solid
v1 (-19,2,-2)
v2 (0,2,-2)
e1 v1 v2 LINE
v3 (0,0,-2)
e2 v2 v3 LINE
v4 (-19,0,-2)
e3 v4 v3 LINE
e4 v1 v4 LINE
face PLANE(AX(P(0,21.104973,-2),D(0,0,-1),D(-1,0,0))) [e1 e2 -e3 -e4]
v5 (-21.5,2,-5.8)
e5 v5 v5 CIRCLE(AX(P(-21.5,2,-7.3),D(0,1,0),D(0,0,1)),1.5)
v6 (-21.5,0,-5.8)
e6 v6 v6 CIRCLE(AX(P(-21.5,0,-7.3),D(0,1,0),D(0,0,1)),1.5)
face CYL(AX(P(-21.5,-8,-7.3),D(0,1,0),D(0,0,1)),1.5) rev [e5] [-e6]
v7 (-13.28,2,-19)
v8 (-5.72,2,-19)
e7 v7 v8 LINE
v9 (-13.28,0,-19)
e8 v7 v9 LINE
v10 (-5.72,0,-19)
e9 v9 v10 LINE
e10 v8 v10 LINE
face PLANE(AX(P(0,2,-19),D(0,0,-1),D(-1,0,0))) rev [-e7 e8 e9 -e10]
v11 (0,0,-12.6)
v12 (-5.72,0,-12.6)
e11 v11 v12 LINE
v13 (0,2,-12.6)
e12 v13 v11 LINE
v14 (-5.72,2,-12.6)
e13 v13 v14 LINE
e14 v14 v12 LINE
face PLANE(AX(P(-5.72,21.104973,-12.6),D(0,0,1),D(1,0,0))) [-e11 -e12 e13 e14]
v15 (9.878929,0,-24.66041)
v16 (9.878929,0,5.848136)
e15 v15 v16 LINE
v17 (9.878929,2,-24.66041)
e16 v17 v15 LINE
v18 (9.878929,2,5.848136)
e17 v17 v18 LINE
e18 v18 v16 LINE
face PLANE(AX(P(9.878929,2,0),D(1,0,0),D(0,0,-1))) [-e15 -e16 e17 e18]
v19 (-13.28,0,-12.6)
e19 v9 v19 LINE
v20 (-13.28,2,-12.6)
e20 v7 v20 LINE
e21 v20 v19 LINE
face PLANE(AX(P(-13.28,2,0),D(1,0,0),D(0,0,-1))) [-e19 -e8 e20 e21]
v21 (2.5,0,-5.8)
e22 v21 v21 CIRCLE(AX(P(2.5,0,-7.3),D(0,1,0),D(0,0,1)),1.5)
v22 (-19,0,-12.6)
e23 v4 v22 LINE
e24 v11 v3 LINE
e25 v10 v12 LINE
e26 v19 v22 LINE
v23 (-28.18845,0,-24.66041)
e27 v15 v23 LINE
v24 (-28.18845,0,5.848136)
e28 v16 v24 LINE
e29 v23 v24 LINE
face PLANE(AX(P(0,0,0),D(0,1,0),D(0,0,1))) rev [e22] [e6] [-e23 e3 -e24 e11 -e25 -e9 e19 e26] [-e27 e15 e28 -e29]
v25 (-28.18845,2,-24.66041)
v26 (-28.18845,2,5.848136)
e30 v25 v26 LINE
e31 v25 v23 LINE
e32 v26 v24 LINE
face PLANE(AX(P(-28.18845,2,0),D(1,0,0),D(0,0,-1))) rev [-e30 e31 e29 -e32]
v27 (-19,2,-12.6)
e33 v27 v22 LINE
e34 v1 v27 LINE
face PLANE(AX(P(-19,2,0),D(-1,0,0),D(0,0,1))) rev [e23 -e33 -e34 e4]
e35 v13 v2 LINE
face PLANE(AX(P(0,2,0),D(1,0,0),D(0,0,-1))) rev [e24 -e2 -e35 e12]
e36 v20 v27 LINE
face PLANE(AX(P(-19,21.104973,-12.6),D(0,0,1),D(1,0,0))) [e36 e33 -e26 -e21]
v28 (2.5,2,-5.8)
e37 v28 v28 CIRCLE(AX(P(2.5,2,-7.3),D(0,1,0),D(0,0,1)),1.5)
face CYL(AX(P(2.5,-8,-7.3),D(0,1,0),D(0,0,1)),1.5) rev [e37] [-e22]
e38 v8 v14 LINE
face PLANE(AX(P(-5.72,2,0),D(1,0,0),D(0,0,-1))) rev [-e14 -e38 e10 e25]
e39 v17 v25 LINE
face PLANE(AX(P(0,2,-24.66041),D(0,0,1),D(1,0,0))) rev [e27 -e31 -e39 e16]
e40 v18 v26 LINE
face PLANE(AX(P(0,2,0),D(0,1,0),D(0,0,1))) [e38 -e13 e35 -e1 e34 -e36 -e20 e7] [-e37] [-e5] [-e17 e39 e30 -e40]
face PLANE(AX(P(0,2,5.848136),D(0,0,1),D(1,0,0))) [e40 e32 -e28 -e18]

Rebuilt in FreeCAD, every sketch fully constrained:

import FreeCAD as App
import Part
import Sketcher

V = App.Vector


def add_polygon(sketch, points):
    """Adds a closed chain of lines whose ends are joined by coincident constraints."""
    first, n = sketch.GeometryCount, len(points)
    for a, b in zip(points, points[1:] + points[:1]):
        sketch.addGeometry(Part.LineSegment(App.Vector(*a, 0), App.Vector(*b, 0)), False)
    for i in range(n):
        sketch.addConstraint(Sketcher.Constraint("Coincident", first + i, 2, first + (i + 1) % n, 1))

doc = App.newDocument("Part")
body = doc.addObject("PartDesign::Body", "Body")

# Sketch on XZ plane
sketch1 = body.newObject("Sketcher::SketchObject", "Sketch")
sketch1.AttachmentSupport = (doc.getObject("XZ_Plane"), [""])
sketch1.MapMode = "FlatFace"
add_polygon(sketch1, [(-28.2, -24.7), (-28.2, 5.8), (9.9, 5.8), (9.9, -24.7)])  # lines 0-3
sketch1.addGeometry(Part.Circle(V(-21.5, -7.9, 0), V(0, 0, 1), 1.5), False)  # 4
sketch1.addGeometry(Part.Circle(V(2.5, -7.9, 0), V(0, 0, 1), 1.5), False)  # 5
add_polygon(sketch1, [(0, 0), (-19, 0), (-19, -14.6), (-13.3, -14.6), (-13.3, -19), (-5.7, -19), (-5.7, -14.6), (0, -14.6)])  # lines 6-13
sketch1.addConstraint([
    Sketcher.Constraint("Vertical", 0),
    Sketcher.Constraint("Horizontal", 1),
    Sketcher.Constraint("Vertical", 2),
    Sketcher.Constraint("Horizontal", 3),
    Sketcher.Constraint("Horizontal", 6),
    Sketcher.Constraint("Vertical", 7),
    Sketcher.Constraint("Horizontal", 8),
    Sketcher.Constraint("Vertical", 9),
    Sketcher.Constraint("Horizontal", 10),
    Sketcher.Constraint("Vertical", 11),
    Sketcher.Constraint("Horizontal", 12),
    Sketcher.Constraint("Vertical", 13),
    Sketcher.Constraint("Coincident", 13, 2, -1, 1),
    Sketcher.Constraint("Equal", 4, 5),
    Sketcher.Constraint("Horizontal", 4, 3, 5, 3),
    Sketcher.Constraint("Horizontal", 8, 2, 11, 2),
    Sketcher.Constraint("Equal", 8, 12),
    Sketcher.Constraint("Diameter", 4, 3.0),
    Sketcher.Constraint("DistanceX", 6, 2, 6, 1, 19.0),
    Sketcher.Constraint("DistanceY", 7, 2, 7, 1, 14.6),
    Sketcher.Constraint("DistanceY", 9, 2, 9, 1, 4.4),
    Sketcher.Constraint("DistanceX", 4, 3, 5, 3, 24.0),
    Sketcher.Constraint("DistanceX", 8, 1, 8, 2, 5.72),
    Sketcher.Constraint("DistanceX", 4, 3, -1, 1, 21.5),
    Sketcher.Constraint("DistanceY", 4, 3, -1, 1, 7.875),
    Sketcher.Constraint("DistanceX", 1, 1, 1, 2, 38.067379),
    Sketcher.Constraint("DistanceY", 0, 1, 0, 2, 30.508545),
    Sketcher.Constraint("DistanceX", 0, 2, -1, 1, 28.18845),
    Sketcher.Constraint("DistanceY", 2, 2, -1, 1, 24.66041),
])
pad1 = body.newObject("PartDesign::Pad", "Pad")
pad1.Profile = sketch1
pad1.Length = 2
pad1.Reversed = True

# Sketch on XZ plane
sketch2 = body.newObject("Sketcher::SketchObject", "Sketch001")
sketch2.AttachmentSupport = (doc.getObject("XZ_Plane"), [""])
sketch2.MapMode = "FlatFace"
add_polygon(sketch2, [(-19, -12.6), (-19, -14.6), (-13.3, -14.6), (-13.3, -12.6)])  # lines 0-3
add_polygon(sketch2, [(-5.7, -12.6), (-5.7, -14.6), (0, -14.6), (0, -12.6)])  # lines 4-7
add_polygon(sketch2, [(-19, 0), (-19, -2), (0, -2), (0, 0)])  # lines 8-11
sketch2.addConstraint([
    Sketcher.Constraint("Vertical", 0),
    Sketcher.Constraint("Horizontal", 1),
    Sketcher.Constraint("Vertical", 2),
    Sketcher.Constraint("Horizontal", 3),
    Sketcher.Constraint("Vertical", 4),
    Sketcher.Constraint("Horizontal", 5),
    Sketcher.Constraint("Vertical", 6),
    Sketcher.Constraint("Horizontal", 7),
    Sketcher.Constraint("Vertical", 8),
    Sketcher.Constraint("Horizontal", 9),
    Sketcher.Constraint("Vertical", 10),
    Sketcher.Constraint("Horizontal", 11),
    Sketcher.Constraint("Coincident", 10, 2, -1, 1),
    Sketcher.Constraint("PointOnObject", 5, 2, -2),
    Sketcher.Constraint("Horizontal", 1, 2, 4, 2),
    Sketcher.Constraint("Horizontal", 3, 2, 6, 2),
    Sketcher.Constraint("Vertical", 3, 2, 8, 2),
    Sketcher.Constraint("Equal", 3, 5),
    Sketcher.Constraint("Equal", 6, 8),
    Sketcher.Constraint("DistanceX", 9, 1, 9, 2, 19.0),
    Sketcher.Constraint("DistanceY", 0, 2, 0, 1, 2.0),
    Sketcher.Constraint("DistanceX", 1, 1, 1, 2, 5.72),
    Sketcher.Constraint("DistanceY", 0, 2, -1, 1, 14.6),
])
pad2 = body.newObject("PartDesign::Pad", "Pad001")
pad2.Profile = sketch2
pad2.Length = 2
pad2.Reversed = True

# Sketch on XZ plane
sketch3 = body.newObject("Sketcher::SketchObject", "Sketch002")
sketch3.AttachmentSupport = (doc.getObject("XZ_Plane"), [""])
sketch3.MapMode = "FlatFace"
sketch3.AttachmentOffset = App.Placement(V(0, 0, -2), App.Rotation())
add_polygon(sketch3, [(-24.8, -12.4), (-24.8, -5), (-19.5, -5), (-19.5, -12.4)])  # lines 0-3
add_polygon(sketch3, [(0.7, -11.3), (0.7, -5.4), (5.1, -5.4), (5.1, -11.3)])  # lines 4-7
sketch3.addConstraint([
    Sketcher.Constraint("Vertical", 0),
    Sketcher.Constraint("Horizontal", 1),
    Sketcher.Constraint("Vertical", 2),
    Sketcher.Constraint("Horizontal", 3),
    Sketcher.Constraint("Vertical", 4),
    Sketcher.Constraint("Horizontal", 5),
    Sketcher.Constraint("Vertical", 6),
    Sketcher.Constraint("Horizontal", 7),
    Sketcher.Constraint("DistanceX", 1, 1, 1, 2, 5.306249),
    Sketcher.Constraint("DistanceX", 5, 1, 5, 2, 4.413118),
    Sketcher.Constraint("DistanceY", 0, 1, 0, 2, 7.407734),
    Sketcher.Constraint("DistanceY", 4, 1, 4, 2, 5.936695),
    Sketcher.Constraint("DistanceY", 0, 2, -1, 1, 4.993019),
    Sketcher.Constraint("DistanceY", 4, 2, -1, 1, 5.360779),
    Sketcher.Constraint("DistanceX", 1, 2, 4, 2, 20.226792),
    Sketcher.Constraint("DistanceX", 0, 2, -1, 1, 24.810823),
])
pad3 = body.newObject("PartDesign::Pad", "Pad002")
pad3.Profile = sketch3
pad3.Length = 2

# Sketch on XZ plane
sketch4 = body.newObject("Sketcher::SketchObject", "Sketch003")
sketch4.AttachmentSupport = (doc.getObject("XZ_Plane"), [""])
sketch4.MapMode = "FlatFace"
sketch4.AttachmentOffset = App.Placement(V(0, 0, -2), App.Rotation())
sketch4.addGeometry([
    Part.Circle(V(-21.5, -7.3, 0), V(0, 0, 1), 1.5),
    Part.Circle(V(2.5, -7.3, 0), V(0, 0, 1), 1.5),
], False)
sketch4.addConstraint([
    Sketcher.Constraint("Equal", 0, 1),
    Sketcher.Constraint("Horizontal", 0, 3, 1, 3),
    Sketcher.Constraint("Diameter", 0, 3.0),
    Sketcher.Constraint("DistanceX", 0, 3, 1, 3, 24.0),
    Sketcher.Constraint("DistanceX", 0, 3, -1, 1, 21.5),
    Sketcher.Constraint("DistanceY", 0, 3, -1, 1, 7.3),
])
pocket1 = body.newObject("PartDesign::Pocket", "Pocket")
pocket1.Profile = sketch4
pocket1.Length = 10
pocket1.Reversed = True

doc.recompute()
